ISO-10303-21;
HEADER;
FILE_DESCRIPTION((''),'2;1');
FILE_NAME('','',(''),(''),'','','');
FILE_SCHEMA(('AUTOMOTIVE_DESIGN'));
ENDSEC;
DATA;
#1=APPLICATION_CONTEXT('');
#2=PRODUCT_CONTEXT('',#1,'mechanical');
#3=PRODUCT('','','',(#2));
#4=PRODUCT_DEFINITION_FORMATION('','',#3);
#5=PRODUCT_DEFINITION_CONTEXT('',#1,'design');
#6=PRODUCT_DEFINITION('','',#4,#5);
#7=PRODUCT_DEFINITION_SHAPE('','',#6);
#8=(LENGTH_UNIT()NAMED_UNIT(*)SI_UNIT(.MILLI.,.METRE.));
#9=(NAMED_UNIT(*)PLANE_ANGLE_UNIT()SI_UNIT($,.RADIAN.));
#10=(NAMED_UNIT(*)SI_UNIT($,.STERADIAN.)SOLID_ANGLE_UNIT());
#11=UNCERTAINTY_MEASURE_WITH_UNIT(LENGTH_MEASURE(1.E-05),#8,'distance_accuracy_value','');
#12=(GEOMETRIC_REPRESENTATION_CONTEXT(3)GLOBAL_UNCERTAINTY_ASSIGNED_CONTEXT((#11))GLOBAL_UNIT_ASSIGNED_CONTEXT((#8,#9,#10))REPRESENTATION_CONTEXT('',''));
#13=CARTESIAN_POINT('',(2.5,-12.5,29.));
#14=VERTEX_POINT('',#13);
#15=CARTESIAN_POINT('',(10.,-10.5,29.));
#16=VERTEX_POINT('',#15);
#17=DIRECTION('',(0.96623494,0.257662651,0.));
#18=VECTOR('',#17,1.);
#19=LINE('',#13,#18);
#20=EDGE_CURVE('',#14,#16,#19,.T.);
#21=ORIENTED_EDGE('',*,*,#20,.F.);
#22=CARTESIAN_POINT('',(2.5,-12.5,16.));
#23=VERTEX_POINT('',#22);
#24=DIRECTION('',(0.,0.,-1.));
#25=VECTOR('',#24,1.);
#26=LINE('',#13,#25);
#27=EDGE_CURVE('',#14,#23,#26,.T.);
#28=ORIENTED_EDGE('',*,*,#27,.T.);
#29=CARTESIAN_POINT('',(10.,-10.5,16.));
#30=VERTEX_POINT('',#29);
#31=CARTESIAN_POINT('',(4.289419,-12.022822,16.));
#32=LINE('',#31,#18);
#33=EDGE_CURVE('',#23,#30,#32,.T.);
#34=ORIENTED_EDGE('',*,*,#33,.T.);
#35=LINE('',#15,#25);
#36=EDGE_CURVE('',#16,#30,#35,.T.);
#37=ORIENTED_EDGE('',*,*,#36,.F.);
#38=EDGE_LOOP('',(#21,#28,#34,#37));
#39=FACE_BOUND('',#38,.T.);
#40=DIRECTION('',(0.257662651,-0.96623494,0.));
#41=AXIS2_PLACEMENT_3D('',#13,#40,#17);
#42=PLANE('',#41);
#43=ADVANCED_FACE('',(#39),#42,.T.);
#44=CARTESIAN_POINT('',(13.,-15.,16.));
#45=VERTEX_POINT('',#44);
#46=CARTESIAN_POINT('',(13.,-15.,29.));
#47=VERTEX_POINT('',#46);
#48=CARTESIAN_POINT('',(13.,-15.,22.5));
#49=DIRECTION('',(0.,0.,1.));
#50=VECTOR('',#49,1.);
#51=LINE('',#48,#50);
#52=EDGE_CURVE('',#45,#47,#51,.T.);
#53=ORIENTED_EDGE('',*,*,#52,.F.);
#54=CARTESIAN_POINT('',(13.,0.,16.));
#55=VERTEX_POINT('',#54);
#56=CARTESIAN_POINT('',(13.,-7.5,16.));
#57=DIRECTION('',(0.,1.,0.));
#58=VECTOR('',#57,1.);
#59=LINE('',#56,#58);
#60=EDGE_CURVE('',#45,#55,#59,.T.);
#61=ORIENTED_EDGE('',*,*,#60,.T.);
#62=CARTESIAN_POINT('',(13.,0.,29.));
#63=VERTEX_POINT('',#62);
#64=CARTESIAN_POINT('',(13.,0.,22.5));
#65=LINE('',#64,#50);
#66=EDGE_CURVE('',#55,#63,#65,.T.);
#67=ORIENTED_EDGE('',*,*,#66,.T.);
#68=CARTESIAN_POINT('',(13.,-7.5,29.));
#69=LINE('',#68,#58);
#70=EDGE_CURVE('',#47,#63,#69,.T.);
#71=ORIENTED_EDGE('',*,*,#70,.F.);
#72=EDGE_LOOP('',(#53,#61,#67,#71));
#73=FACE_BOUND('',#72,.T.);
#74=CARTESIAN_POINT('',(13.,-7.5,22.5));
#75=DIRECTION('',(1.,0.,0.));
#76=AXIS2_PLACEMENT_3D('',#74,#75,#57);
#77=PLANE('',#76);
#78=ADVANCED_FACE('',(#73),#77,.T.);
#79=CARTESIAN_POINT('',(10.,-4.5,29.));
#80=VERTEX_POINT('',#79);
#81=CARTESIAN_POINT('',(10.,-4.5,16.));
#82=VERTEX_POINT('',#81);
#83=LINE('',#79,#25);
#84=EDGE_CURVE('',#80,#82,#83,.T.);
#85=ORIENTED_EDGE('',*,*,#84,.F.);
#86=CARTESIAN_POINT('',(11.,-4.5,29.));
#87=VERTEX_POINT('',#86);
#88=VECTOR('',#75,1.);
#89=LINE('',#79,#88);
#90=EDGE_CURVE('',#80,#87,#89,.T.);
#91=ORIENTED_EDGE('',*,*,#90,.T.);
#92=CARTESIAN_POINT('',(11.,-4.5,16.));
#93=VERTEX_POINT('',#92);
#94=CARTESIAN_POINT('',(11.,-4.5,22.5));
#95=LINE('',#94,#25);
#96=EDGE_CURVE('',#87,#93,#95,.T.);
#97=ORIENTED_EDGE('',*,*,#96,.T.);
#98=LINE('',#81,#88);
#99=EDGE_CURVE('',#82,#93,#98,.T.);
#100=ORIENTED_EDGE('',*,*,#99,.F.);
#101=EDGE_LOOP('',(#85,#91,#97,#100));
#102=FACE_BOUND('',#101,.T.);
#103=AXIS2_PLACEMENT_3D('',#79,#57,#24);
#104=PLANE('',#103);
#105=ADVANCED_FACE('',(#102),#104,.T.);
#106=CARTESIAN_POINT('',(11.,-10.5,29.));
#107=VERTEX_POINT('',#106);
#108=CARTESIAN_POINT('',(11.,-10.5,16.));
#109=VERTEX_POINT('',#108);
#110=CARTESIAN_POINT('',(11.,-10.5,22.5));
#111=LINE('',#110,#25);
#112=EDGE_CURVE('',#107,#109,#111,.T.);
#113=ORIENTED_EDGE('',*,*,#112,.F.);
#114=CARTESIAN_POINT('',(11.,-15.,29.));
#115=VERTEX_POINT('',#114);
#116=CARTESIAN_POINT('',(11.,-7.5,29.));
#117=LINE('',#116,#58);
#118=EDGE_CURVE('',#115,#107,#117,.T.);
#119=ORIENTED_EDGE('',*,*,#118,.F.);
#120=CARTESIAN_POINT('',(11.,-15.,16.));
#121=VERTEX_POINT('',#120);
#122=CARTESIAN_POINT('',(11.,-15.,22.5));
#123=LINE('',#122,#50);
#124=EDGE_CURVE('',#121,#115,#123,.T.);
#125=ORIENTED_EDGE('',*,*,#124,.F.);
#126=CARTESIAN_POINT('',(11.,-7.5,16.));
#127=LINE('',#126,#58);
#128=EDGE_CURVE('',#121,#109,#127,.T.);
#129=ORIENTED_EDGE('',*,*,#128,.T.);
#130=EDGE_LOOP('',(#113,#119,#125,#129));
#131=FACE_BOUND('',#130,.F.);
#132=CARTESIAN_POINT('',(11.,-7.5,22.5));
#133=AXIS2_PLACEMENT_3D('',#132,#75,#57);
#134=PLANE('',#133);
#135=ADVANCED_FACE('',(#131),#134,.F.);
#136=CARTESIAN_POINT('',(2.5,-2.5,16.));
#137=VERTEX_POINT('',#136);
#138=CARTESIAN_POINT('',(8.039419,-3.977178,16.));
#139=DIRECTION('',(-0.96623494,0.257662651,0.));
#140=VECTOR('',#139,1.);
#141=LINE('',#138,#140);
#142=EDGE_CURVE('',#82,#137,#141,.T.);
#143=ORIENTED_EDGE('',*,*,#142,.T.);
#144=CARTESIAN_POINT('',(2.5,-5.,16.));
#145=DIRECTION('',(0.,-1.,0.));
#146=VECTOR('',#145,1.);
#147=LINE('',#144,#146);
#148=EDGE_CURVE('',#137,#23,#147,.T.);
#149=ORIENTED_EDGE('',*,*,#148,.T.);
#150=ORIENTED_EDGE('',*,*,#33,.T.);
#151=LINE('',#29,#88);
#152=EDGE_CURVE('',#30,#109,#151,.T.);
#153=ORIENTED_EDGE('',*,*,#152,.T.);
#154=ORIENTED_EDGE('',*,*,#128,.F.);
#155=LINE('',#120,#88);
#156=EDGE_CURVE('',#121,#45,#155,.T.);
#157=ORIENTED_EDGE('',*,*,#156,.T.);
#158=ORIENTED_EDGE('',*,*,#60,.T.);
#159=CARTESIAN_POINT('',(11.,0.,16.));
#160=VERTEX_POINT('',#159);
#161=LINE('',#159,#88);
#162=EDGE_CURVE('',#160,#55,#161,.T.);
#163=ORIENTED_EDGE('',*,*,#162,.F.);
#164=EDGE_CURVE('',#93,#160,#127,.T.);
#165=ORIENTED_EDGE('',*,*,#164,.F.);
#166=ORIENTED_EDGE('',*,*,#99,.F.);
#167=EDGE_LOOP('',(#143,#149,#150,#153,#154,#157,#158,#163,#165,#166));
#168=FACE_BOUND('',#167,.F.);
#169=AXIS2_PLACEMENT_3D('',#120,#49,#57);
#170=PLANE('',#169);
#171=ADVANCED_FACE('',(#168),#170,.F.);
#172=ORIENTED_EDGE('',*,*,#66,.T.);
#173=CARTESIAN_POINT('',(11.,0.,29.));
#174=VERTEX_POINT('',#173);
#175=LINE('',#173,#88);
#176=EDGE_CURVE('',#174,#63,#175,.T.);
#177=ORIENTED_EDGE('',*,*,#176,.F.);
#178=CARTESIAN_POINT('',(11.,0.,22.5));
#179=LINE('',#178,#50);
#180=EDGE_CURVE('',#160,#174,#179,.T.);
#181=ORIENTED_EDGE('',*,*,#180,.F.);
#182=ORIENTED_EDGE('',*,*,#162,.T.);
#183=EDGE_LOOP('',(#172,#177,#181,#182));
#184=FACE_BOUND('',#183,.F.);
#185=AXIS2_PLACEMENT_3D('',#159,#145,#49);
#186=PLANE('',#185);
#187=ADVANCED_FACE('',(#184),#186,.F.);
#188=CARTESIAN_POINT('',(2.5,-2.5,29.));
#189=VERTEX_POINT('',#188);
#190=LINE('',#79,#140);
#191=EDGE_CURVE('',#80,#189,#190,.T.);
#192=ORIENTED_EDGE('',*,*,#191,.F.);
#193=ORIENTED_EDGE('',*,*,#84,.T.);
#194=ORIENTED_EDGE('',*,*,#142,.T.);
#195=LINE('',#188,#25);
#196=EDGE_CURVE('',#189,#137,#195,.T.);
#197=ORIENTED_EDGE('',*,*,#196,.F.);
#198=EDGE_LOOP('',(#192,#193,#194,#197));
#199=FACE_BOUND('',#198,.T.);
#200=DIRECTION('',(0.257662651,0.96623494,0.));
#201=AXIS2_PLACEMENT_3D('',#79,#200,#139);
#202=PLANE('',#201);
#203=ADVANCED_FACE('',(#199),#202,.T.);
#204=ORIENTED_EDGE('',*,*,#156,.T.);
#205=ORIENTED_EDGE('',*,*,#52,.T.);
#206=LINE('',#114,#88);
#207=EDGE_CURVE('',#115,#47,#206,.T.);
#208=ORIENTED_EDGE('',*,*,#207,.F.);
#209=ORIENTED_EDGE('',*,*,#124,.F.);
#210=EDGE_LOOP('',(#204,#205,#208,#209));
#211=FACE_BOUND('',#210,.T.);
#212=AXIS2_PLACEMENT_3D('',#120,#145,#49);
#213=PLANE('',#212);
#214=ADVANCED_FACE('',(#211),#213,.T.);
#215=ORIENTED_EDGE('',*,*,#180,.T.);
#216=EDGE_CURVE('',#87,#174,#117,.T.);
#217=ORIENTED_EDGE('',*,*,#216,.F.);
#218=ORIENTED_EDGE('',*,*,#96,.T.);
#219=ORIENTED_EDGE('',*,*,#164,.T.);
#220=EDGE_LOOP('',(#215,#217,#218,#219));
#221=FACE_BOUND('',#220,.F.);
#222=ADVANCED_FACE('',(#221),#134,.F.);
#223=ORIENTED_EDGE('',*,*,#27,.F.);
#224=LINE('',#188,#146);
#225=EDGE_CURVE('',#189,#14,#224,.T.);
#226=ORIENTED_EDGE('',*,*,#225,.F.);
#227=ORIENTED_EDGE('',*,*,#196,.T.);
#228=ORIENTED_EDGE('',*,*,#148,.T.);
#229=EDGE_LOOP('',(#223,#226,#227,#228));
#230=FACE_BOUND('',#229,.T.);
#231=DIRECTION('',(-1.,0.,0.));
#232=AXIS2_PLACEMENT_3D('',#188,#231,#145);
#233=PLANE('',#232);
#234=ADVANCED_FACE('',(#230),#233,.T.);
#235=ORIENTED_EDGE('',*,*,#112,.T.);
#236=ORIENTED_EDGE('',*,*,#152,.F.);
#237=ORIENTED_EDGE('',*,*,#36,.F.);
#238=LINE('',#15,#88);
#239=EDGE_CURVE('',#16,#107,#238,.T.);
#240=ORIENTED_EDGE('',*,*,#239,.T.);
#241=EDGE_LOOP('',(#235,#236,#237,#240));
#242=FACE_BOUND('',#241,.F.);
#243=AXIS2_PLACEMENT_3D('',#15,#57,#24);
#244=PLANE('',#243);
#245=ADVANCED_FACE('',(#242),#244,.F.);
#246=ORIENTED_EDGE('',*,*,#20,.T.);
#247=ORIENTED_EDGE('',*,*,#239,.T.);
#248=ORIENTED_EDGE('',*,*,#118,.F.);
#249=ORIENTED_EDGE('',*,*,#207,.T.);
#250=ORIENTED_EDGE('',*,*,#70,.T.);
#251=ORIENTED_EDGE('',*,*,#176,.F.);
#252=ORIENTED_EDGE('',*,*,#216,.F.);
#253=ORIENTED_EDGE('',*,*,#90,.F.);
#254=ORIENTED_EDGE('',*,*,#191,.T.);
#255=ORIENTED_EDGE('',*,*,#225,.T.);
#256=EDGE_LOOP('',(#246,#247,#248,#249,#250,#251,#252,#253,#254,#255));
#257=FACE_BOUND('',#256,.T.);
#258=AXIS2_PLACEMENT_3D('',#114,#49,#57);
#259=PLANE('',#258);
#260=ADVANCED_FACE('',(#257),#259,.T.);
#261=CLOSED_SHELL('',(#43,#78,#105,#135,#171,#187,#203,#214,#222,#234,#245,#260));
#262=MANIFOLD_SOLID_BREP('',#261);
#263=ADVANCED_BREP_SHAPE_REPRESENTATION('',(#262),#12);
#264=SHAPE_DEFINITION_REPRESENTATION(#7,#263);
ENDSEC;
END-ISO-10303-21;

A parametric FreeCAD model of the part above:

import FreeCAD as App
import Part
import Sketcher
from FreeCAD import Vector


def add_polygon(sketch, points):
    """Adds a closed chain of lines whose ends are joined by coincident constraints."""
    first, n = sketch.GeometryCount, len(points)
    for a, b in zip(points, points[1:] + points[:1]):
        sketch.addGeometry(Part.LineSegment(App.Vector(*a, 0), App.Vector(*b, 0)), False)
    for i in range(n):
        sketch.addConstraint(Sketcher.Constraint("Coincident", first + i, 2, first + (i + 1) % n, 1))

doc = App.newDocument("Part")
body = doc.addObject("PartDesign::Body", "Body")

sketch1 = body.newObject("Sketcher::SketchObject", "Sketch")
sketch1.AttachmentSupport = (doc.getObject("XY_Plane"), [""])
sketch1.MapMode = "FlatFace"
add_polygon(sketch1, [(0, 0), (0, -15), (10, -15), (10, 0)])
sketch1.addConstraint([
    Sketcher.Constraint("Vertical", 0),
    Sketcher.Constraint("Horizontal", 1),
    Sketcher.Constraint("Vertical", 2),
    Sketcher.Constraint("Horizontal", 3),
    Sketcher.Constraint("Coincident", 3, 2, -1, 1),
    Sketcher.Constraint("DistanceX", 1, 1, 1, 2, 10.0),
    Sketcher.Constraint("DistanceY", 0, 2, 0, 1, 15.0),
])
pad1 = body.newObject("PartDesign::Pad", "Pad")
pad1.Profile = sketch1
pad1.Length = 13

sketch2 = body.newObject("Sketcher::SketchObject", "Sketch001")
sketch2.AttachmentSupport = (doc.getObject("XY_Plane"), [""])
sketch2.MapMode = "FlatFace"
sketch2.AttachmentOffset = App.Placement(Vector(0, 0, 13), App.Rotation())
add_polygon(sketch2, [(2.5, -2.5), (10, -4.5), (10, 0), (0, 0), (0, -15), (10, -15), (10, -10.5), (2.5, -12.5)])
sketch2.addConstraint([
    Sketcher.Constraint("Vertical", 1),
    Sketcher.Constraint("Horizontal", 2),
    Sketcher.Constraint("Vertical", 3),
    Sketcher.Constraint("Horizontal", 4),
    Sketcher.Constraint("Vertical", 5),
    Sketcher.Constraint("Vertical", 7),
    Sketcher.Constraint("Coincident", 2, 2, -1, 1),
    Sketcher.Constraint("Vertical", 1, 2, 4, 2),
    Sketcher.Constraint("Equal", 1, 5),
    Sketcher.Constraint("Equal", 4, 7),
    Sketcher.Constraint("Equal", 0, 6),
    Sketcher.Constraint("DistanceX", 2, 2, 2, 1, 10.0),
    Sketcher.Constraint("DistanceY", 3, 2, 3, 1, 15.0),
    Sketcher.Constraint("DistanceY", 1, 1, 1, 2, 4.5),
    Sketcher.Constraint("DistanceX", -1, 1, 6, 2, 2.5),
])
pocket1 = body.newObject("PartDesign::Pocket", "Pocket")
pocket1.Profile = sketch2
pocket1.Type = "ThroughAll"

sketch3 = body.newObject("Sketcher::SketchObject", "Sketch002")
sketch3.AttachmentSupport = (doc.getObject("YZ_Plane"), [""])
sketch3.MapMode = "FlatFace"
sketch3.AttachmentOffset = App.Placement(Vector(0, 0, 10), App.Rotation())
add_polygon(sketch3, [(-4, 0), (-4, 13), (-10, 13), (-10, 0)])
sketch3.addConstraint([
    Sketcher.Constraint("Vertical", 0),
    Sketcher.Constraint("Horizontal", 1),
    Sketcher.Constraint("Vertical", 2),
    Sketcher.Constraint("Horizontal", 3),
    Sketcher.Constraint("PointOnObject", 2, 2, -1),
    Sketcher.Constraint("DistanceX", 1, 2, 1, 1, 6.0),
    Sketcher.Constraint("DistanceY", 0, 1, 0, 2, 13.0),
    Sketcher.Constraint("DistanceX", 0, 2, -1, 1, 4.5),
])
pad2 = body.newObject("PartDesign::Pad", "Pad001")
pad2.Profile = sketch3
pad2.Length = 1

sketch4 = body.newObject("Sketcher::SketchObject", "Sketch003")
sketch4.AttachmentSupport = (doc.getObject("YZ_Plane"), [""])
sketch4.MapMode = "FlatFace"
sketch4.AttachmentOffset = App.Placement(Vector(0, 0, 11), App.Rotation())
add_polygon(sketch4, [(-15, 13), (-15, 0), (0, 0), (0, 13)])
sketch4.addConstraint([
    Sketcher.Constraint("Vertical", 0),
    Sketcher.Constraint("Horizontal", 1),
    Sketcher.Constraint("Vertical", 2),
    Sketcher.Constraint("Horizontal", 3),
    Sketcher.Constraint("Coincident", 1, 2, -1, 1),
    Sketcher.Constraint("DistanceX", 1, 1, 1, 2, 15.0),
    Sketcher.Constraint("DistanceY", 0, 2, 0, 1, 13.0),
])
pad3 = body.newObject("PartDesign::Pad", "Pad002")
pad3.Profile = sketch4
pad3.Length = 2
body2 = doc.addObject("PartDesign::Body", "Body001")
doc.recompute()

body.Placement = App.Placement(Vector(0, 0, 16), App.Rotation(Vector(0, 0, 1), 0))
boolean = body2.newObject("PartDesign::Boolean", "Boolean")
boolean.Type = "Fuse"
boolean.addObjects([body])

doc.recompute()
